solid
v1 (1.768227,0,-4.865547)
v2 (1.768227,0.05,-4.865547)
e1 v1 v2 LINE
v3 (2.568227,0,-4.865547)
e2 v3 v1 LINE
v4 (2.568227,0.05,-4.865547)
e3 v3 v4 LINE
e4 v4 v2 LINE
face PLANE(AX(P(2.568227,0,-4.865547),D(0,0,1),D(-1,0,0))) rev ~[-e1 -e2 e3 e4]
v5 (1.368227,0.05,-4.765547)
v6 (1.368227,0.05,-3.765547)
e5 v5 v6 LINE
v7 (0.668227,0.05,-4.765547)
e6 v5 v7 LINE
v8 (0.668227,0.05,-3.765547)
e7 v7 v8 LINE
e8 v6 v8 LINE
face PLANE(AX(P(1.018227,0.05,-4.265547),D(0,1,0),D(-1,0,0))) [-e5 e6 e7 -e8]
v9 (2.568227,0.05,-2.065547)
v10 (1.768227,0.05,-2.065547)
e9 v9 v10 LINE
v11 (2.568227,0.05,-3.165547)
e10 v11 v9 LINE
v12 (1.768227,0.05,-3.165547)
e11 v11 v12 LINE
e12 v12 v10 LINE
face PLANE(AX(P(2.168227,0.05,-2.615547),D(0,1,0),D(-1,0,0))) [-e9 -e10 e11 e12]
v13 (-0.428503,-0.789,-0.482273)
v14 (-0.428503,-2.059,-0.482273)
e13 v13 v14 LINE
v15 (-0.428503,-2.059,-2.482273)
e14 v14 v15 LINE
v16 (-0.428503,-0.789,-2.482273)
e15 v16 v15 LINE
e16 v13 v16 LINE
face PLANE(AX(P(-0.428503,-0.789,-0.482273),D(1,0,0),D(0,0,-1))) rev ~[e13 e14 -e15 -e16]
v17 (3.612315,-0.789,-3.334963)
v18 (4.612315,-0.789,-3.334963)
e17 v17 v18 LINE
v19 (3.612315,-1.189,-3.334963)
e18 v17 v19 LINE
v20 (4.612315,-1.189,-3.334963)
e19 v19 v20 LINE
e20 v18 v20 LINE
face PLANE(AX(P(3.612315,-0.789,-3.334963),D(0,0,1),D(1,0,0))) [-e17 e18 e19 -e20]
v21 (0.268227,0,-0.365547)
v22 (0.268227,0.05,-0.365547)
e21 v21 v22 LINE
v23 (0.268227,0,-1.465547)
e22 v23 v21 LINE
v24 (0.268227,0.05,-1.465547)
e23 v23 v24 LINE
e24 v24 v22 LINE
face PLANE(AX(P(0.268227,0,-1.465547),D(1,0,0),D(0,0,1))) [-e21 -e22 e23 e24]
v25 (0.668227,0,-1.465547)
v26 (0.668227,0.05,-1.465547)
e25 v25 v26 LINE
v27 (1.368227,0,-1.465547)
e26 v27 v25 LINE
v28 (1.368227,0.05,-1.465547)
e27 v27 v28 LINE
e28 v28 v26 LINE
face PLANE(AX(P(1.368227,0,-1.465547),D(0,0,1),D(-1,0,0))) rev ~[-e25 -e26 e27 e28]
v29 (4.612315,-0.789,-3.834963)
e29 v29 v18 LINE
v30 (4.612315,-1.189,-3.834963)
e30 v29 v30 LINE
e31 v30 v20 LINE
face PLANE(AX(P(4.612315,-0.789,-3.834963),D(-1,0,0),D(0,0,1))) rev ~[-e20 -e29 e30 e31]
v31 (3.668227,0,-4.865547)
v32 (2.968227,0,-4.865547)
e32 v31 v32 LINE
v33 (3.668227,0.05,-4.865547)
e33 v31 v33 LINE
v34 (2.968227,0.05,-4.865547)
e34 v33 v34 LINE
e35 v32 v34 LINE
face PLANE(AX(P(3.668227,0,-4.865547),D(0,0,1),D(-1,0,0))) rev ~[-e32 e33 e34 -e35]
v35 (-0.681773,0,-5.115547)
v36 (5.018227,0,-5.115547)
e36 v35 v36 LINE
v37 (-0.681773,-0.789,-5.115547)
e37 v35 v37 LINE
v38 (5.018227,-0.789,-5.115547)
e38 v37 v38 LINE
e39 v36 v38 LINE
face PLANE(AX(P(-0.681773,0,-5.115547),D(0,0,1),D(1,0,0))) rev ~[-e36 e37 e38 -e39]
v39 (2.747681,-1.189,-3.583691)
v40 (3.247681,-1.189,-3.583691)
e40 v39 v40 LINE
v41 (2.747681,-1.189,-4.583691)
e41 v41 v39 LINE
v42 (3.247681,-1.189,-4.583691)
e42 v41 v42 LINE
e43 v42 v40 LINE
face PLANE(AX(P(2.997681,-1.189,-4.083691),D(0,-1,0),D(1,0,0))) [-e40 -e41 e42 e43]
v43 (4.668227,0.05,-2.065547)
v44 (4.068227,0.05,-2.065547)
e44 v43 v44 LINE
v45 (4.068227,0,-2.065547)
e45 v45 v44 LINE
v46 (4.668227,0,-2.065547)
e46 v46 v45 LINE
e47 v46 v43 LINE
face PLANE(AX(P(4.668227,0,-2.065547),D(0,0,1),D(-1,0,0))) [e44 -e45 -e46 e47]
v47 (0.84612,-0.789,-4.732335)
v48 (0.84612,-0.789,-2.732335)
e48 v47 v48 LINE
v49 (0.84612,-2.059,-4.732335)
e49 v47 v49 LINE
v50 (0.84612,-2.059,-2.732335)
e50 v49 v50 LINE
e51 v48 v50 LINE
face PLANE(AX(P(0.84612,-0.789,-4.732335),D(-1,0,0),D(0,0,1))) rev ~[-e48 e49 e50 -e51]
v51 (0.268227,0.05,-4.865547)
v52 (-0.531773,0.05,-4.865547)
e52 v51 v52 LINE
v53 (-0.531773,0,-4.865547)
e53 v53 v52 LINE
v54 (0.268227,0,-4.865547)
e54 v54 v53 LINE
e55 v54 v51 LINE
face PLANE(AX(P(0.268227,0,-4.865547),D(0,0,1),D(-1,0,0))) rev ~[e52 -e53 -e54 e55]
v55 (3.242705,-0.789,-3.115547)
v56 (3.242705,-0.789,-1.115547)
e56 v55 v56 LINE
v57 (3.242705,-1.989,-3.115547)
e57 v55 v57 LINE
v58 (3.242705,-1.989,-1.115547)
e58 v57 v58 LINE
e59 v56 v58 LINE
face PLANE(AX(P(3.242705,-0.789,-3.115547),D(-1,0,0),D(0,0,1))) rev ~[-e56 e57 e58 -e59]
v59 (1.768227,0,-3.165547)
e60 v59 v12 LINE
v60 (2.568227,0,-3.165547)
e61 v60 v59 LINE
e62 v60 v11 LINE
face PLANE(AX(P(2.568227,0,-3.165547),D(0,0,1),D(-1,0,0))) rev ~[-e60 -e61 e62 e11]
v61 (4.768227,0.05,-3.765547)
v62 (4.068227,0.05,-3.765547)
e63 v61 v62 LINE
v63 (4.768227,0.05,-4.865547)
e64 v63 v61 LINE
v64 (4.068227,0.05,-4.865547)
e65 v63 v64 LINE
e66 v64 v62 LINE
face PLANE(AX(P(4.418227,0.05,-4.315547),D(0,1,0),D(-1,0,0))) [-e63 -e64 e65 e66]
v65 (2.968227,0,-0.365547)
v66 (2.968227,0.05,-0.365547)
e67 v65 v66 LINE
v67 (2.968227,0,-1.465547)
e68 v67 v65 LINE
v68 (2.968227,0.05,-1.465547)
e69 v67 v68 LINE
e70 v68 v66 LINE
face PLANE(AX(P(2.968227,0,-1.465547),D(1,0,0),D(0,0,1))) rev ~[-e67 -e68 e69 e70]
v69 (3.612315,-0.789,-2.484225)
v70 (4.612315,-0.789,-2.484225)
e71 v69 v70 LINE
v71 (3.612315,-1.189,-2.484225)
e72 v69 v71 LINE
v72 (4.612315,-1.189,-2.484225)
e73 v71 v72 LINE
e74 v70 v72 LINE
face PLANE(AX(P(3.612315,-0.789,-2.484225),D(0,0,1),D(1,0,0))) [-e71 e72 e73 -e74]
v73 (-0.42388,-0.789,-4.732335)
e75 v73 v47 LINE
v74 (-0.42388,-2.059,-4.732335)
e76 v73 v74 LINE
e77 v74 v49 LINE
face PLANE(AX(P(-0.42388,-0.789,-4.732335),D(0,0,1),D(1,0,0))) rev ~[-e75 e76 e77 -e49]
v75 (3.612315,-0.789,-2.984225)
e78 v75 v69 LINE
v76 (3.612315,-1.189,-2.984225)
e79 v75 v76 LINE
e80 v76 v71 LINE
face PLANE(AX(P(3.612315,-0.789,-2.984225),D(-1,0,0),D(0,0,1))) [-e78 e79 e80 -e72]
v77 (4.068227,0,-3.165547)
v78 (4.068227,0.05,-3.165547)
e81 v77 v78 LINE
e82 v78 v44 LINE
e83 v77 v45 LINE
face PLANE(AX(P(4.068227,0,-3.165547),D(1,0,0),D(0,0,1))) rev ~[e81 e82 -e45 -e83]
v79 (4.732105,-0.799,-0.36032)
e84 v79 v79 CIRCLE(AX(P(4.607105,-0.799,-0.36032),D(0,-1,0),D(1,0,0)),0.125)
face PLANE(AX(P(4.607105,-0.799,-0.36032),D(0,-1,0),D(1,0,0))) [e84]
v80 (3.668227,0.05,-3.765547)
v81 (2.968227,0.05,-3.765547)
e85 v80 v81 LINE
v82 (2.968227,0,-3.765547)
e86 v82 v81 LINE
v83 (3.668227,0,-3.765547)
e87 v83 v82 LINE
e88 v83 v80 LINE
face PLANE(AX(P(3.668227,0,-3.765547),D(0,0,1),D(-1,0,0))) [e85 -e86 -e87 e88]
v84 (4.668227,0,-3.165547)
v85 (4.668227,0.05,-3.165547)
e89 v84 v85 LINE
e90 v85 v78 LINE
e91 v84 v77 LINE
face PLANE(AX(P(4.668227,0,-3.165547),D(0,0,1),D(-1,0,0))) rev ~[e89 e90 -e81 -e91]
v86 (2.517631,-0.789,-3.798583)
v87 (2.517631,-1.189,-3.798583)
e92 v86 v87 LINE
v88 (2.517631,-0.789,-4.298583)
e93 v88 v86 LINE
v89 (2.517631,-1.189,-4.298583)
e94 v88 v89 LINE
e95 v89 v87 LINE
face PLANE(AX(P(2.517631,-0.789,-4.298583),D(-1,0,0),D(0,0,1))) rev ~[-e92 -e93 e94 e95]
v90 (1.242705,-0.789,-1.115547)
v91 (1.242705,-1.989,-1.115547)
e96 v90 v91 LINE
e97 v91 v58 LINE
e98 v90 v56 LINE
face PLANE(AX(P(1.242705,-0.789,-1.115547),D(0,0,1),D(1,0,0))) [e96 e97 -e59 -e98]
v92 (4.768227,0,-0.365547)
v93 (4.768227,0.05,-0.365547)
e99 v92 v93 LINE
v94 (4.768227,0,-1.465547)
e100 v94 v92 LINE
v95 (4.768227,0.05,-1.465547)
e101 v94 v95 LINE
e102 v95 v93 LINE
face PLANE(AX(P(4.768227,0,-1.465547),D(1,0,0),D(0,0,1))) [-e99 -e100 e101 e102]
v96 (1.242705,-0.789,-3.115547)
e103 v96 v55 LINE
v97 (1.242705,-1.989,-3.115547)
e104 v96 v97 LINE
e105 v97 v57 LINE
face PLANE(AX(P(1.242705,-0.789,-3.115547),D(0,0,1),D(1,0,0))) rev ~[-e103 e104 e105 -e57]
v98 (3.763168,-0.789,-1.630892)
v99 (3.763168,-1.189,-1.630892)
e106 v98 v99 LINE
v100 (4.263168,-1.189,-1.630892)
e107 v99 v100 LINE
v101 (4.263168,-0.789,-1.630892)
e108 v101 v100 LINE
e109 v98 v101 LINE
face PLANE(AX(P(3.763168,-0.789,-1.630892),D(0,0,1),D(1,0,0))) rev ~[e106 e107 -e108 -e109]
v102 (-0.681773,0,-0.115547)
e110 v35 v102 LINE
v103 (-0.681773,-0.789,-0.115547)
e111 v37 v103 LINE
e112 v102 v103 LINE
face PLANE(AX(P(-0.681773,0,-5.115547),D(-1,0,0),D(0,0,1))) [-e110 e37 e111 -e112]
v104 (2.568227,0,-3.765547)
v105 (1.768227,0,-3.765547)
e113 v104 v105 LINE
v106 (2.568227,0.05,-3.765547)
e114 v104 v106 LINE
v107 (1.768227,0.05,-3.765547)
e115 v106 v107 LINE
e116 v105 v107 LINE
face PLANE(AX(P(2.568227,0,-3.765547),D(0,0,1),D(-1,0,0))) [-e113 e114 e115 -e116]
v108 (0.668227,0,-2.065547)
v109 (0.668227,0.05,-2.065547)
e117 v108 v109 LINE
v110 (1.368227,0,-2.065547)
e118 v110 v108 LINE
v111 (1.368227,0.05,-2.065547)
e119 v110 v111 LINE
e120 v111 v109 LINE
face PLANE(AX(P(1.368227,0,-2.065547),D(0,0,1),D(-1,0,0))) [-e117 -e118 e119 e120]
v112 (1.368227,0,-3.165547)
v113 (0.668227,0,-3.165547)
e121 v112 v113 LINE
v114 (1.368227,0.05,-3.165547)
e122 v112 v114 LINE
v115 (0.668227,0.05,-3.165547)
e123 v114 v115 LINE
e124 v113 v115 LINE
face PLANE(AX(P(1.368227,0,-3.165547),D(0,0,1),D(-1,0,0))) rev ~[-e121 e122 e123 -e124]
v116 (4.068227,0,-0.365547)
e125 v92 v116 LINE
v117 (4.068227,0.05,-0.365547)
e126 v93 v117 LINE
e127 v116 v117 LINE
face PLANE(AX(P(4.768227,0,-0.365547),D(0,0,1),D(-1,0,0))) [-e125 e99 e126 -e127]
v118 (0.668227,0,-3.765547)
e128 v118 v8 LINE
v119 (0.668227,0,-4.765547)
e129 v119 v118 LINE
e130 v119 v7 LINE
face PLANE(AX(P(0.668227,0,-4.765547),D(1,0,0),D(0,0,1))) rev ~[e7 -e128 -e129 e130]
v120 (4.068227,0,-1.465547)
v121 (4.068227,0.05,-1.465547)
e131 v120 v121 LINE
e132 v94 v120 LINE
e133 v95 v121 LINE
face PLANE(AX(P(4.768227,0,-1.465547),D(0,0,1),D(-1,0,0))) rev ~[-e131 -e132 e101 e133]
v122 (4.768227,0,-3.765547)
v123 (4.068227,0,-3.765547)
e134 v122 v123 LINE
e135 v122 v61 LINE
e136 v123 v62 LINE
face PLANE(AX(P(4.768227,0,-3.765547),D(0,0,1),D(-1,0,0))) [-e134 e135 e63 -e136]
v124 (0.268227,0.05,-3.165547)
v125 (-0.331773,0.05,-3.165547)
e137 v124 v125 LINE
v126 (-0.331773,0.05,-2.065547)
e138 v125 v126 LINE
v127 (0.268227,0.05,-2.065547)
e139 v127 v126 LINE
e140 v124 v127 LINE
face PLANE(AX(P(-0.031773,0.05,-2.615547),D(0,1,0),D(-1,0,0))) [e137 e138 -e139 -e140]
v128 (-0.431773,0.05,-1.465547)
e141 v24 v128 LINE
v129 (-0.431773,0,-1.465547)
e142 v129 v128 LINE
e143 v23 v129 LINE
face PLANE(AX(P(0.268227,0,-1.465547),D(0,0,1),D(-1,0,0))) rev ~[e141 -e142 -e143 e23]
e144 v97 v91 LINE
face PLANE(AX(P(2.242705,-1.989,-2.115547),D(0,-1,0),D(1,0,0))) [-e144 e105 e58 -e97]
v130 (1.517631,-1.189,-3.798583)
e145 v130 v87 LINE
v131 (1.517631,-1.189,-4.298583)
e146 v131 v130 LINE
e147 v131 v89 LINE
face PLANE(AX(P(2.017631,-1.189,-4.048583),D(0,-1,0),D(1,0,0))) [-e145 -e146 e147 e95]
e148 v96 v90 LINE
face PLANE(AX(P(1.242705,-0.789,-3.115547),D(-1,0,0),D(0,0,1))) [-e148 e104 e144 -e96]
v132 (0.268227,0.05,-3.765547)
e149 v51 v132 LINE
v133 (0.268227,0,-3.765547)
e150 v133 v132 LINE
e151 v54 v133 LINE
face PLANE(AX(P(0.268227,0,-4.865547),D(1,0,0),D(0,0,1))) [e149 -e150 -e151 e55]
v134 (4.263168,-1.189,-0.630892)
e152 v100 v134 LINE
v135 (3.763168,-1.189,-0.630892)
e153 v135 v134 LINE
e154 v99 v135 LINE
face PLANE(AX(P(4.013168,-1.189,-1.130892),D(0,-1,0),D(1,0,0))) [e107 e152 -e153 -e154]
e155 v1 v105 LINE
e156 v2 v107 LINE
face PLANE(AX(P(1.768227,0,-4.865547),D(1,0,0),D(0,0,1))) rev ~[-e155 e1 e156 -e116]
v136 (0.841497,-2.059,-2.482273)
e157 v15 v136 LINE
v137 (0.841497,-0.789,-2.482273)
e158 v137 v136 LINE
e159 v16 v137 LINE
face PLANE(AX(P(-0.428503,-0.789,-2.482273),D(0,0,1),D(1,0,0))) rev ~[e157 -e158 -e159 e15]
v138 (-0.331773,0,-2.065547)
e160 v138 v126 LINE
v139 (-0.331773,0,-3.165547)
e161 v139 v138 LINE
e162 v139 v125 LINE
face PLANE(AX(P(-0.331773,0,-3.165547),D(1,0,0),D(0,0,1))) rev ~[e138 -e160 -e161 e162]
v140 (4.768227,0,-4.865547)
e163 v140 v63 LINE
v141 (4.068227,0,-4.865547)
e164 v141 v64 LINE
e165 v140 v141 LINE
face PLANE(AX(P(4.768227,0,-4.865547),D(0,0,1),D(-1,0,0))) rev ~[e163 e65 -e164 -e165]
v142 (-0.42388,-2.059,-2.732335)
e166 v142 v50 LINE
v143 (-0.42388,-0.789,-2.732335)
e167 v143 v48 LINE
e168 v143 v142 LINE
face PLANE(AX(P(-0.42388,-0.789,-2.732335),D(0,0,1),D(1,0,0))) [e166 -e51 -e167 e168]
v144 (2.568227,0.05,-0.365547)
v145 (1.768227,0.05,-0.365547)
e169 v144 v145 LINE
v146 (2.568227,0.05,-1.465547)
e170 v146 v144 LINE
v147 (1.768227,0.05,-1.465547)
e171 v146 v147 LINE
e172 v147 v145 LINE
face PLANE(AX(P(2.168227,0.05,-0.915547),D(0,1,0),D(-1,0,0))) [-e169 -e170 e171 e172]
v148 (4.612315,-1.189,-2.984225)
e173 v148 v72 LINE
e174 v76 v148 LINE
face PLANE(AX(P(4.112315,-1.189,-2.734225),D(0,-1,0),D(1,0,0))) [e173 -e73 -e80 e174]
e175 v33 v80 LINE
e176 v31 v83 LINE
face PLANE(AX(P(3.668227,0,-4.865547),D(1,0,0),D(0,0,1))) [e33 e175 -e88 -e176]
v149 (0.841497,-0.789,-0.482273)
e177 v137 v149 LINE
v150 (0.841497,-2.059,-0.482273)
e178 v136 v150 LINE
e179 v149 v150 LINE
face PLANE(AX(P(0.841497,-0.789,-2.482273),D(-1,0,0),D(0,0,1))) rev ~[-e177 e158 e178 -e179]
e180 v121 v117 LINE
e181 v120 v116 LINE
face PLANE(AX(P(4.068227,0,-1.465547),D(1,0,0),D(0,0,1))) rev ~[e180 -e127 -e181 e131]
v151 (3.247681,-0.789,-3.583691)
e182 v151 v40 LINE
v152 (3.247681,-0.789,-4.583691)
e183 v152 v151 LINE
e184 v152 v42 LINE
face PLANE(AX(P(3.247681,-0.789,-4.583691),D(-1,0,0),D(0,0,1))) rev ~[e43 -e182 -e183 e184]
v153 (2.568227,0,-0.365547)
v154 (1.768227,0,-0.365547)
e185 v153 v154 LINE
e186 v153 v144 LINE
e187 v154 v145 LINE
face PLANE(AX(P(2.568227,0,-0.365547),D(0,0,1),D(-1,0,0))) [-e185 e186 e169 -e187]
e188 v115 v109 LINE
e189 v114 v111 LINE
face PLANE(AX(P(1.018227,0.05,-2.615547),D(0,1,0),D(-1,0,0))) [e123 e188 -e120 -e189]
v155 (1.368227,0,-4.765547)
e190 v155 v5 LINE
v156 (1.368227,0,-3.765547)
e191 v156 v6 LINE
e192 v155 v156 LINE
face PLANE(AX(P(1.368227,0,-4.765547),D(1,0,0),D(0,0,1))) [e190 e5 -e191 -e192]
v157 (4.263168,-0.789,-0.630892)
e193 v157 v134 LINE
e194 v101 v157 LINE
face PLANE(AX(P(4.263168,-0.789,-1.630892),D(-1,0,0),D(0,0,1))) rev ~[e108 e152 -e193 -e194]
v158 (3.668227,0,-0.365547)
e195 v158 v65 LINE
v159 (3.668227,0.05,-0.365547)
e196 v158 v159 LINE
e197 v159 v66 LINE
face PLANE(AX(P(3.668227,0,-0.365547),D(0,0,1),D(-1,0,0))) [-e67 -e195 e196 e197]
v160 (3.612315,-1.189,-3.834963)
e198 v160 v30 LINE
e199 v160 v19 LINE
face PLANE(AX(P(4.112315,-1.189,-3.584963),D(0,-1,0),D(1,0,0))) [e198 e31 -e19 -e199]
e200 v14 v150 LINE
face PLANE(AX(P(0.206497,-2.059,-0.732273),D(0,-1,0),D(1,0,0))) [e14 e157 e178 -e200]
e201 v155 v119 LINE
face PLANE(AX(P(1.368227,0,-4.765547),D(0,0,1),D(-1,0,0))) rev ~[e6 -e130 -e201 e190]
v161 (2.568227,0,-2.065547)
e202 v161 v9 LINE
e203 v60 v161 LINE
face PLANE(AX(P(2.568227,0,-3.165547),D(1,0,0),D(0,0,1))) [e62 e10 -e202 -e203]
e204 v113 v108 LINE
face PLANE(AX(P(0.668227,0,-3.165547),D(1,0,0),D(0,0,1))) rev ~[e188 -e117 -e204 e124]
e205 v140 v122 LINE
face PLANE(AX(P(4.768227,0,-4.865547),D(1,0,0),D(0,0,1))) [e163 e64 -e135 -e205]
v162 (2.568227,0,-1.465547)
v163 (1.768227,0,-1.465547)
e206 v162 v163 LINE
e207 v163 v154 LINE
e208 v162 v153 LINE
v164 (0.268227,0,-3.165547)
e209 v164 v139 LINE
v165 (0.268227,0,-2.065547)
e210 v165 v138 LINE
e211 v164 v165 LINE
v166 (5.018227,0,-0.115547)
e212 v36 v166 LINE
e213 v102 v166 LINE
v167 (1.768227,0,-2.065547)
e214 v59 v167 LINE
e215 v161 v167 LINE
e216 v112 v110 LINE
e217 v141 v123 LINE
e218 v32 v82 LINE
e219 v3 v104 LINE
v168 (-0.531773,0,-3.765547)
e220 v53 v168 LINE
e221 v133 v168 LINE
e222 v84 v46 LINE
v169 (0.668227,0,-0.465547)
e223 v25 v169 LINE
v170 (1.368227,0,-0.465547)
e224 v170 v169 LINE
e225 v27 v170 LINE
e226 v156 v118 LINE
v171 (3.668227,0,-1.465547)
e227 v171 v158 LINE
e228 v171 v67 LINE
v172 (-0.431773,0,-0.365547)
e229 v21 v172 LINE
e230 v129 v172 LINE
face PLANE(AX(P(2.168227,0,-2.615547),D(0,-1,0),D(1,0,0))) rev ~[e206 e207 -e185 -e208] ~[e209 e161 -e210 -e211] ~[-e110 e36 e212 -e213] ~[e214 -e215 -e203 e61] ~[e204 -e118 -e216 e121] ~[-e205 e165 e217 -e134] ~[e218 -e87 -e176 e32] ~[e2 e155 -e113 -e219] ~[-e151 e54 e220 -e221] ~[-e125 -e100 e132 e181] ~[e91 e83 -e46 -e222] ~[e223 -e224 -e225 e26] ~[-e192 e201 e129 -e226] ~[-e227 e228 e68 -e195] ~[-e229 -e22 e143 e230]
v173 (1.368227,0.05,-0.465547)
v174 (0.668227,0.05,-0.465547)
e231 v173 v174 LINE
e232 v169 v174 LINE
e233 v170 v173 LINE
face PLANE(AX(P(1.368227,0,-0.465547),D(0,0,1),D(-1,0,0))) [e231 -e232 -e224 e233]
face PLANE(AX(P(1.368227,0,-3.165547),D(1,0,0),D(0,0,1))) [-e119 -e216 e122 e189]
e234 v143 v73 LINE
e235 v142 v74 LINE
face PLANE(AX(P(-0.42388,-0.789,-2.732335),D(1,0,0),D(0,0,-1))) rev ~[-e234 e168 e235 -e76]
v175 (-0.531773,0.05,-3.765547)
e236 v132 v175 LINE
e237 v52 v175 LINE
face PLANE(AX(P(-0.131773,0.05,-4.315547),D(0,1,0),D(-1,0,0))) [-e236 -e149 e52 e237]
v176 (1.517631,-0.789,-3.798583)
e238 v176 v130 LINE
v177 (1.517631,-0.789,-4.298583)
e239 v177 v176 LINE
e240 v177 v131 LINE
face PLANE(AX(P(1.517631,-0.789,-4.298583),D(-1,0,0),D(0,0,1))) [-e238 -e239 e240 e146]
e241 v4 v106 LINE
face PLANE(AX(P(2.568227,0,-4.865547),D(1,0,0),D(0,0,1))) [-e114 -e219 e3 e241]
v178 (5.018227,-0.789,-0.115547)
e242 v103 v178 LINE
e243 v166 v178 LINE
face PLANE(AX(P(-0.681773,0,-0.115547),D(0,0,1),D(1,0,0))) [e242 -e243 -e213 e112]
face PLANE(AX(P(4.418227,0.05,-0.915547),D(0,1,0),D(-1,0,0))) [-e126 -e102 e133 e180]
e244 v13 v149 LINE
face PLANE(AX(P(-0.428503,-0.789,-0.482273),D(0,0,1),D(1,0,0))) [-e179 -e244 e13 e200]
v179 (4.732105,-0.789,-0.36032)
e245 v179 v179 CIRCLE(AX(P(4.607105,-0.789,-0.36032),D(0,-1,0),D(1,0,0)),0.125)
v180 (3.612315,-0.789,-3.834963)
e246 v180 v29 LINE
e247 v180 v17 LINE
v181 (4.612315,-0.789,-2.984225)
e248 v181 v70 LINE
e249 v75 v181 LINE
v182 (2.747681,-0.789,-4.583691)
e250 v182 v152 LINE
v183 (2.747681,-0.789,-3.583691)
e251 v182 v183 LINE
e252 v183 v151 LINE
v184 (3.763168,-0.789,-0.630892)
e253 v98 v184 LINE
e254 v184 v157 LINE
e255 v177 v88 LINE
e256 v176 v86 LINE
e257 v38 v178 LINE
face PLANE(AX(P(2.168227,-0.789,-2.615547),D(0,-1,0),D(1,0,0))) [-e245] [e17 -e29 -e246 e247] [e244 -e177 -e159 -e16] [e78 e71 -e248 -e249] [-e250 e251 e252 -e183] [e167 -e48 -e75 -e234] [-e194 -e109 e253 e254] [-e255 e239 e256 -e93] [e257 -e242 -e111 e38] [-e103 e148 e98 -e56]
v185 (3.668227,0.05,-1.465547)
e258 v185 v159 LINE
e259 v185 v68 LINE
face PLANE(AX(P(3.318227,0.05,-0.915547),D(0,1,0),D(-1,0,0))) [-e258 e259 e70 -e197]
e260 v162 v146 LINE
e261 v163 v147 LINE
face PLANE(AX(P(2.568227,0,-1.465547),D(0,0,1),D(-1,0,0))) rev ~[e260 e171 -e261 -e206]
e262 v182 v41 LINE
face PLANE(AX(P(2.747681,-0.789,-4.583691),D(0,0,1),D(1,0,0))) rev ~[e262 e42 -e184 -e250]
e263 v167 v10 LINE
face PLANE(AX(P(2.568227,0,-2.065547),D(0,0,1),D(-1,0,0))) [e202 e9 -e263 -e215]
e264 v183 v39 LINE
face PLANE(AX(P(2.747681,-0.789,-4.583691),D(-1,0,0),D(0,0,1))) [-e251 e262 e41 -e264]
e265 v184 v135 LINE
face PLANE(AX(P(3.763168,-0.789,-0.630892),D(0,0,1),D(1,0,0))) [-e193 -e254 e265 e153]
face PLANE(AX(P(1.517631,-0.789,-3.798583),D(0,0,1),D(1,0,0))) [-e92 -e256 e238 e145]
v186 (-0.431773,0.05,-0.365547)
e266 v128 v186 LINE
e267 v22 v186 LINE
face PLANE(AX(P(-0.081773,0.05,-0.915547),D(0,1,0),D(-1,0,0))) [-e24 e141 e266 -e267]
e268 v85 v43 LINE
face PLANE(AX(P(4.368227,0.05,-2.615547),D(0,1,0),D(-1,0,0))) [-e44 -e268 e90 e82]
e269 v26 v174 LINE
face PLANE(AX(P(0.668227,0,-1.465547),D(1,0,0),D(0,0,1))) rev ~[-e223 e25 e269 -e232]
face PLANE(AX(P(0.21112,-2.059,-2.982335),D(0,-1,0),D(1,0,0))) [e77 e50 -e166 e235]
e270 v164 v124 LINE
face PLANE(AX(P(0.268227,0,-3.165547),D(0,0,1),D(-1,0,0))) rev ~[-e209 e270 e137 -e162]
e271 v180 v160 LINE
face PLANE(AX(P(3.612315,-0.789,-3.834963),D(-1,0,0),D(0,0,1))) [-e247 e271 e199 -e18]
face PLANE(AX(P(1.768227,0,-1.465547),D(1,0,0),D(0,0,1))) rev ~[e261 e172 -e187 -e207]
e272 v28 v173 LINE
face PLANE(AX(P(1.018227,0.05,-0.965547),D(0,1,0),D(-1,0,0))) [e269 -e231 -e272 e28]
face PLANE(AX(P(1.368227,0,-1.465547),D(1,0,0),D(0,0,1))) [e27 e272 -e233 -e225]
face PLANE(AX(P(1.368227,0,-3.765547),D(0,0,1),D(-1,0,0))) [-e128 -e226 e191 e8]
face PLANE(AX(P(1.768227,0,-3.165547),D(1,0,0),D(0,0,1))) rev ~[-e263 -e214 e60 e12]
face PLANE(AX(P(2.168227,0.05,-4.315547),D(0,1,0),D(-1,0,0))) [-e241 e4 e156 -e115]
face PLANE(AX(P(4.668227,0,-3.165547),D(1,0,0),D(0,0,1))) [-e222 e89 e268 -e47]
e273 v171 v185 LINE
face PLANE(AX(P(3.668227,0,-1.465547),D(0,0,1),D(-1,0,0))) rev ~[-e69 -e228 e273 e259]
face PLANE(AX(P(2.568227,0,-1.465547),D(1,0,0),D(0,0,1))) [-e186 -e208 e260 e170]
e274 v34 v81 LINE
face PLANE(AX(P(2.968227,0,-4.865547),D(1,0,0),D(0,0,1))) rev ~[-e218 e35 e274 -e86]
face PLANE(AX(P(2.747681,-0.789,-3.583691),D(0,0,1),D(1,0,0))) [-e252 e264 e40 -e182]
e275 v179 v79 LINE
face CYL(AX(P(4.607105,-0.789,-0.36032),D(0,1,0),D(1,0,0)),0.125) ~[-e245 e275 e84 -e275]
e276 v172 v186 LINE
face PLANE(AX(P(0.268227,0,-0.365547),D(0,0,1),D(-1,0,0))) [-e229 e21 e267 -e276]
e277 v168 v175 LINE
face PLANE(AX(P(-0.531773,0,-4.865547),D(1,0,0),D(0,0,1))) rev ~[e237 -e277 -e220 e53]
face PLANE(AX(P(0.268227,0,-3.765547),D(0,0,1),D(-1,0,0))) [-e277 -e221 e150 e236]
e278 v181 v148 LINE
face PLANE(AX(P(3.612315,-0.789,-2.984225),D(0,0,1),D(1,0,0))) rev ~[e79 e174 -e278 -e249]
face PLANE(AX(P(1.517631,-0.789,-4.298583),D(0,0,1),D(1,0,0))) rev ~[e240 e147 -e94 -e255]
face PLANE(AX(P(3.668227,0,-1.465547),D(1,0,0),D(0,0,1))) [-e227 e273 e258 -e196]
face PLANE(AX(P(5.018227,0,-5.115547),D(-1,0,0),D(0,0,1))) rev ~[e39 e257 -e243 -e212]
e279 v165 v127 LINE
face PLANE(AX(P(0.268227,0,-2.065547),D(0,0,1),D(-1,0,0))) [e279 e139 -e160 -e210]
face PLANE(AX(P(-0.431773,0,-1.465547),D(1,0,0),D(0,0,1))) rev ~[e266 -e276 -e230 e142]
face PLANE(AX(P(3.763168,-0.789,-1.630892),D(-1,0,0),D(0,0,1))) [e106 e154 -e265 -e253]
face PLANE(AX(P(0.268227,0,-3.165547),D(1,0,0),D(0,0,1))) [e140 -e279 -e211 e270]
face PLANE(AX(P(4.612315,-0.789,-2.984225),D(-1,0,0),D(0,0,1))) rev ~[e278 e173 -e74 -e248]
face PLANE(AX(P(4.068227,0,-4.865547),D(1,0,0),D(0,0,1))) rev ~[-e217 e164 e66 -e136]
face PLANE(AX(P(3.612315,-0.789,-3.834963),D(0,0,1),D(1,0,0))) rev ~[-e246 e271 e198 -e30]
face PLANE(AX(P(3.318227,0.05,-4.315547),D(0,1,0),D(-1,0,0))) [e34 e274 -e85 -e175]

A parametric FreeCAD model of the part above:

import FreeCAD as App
import Part
import Sketcher
from FreeCAD import Vector
Q = App.Units.Quantity

doc = App.newDocument("Part")
body = doc.addObject("PartDesign::Body", "Body")

sketch1 = body.newObject("Sketcher::SketchObject", "Sketch")
sketch1.AttachmentSupport = (doc.getObject("XZ_Plane"), [""])
sketch1.MapMode = "FlatFace"
sketch1.addGeometry([
    Part.LineSegment(Vector(-0.681773, -0.115547, 0), Vector(-0.681773, -5.115547, 0)),
    Part.LineSegment(Vector(-0.681773, -5.115547, 0), Vector(5.018227, -5.115547, 0)),
    Part.LineSegment(Vector(5.018227, -5.115547, 0), Vector(5.018227, -0.115547, 0)),
    Part.LineSegment(Vector(5.018227, -0.115547, 0), Vector(-0.681773, -0.115547, 0)),
], False)
sketch1.addConstraint([
    Sketcher.Constraint("Coincident", 0, 2, 1, 1),
    Sketcher.Constraint("Coincident", 1, 2, 2, 1),
    Sketcher.Constraint("Coincident", 2, 2, 3, 1),
    Sketcher.Constraint("Coincident", 3, 2, 0, 1),
    Sketcher.Constraint("Vertical", 0),
    Sketcher.Constraint("Horizontal", 1),
    Sketcher.Constraint("Vertical", 2),
    Sketcher.Constraint("Horizontal", 3),
    Sketcher.Constraint("DistanceY", 0, 2, 0, 1, Q("5 mm")),
    Sketcher.Constraint("DistanceX", 1, 1, 1, 2, Q("5.7 mm")),
    Sketcher.Constraint("DistanceX", 0, 2, -1, 1, Q("0.681773 mm")),
    Sketcher.Constraint("DistanceY", 0, 2, -1, 1, Q("5.115547 mm")),
])
pad1 = body.newObject("PartDesign::Pad", "Pad")
pad1.Profile = sketch1
pad1.Length = 0.789

sketch2 = body.newObject("Sketcher::SketchObject", "Sketch001")
sketch2.AttachmentSupport = (doc.getObject("XZ_Plane"), [""])
sketch2.MapMode = "FlatFace"
sketch2.AttachmentOffset = App.Placement(Vector(0, 0, 0.789), App.Rotation())
sketch2.addGeometry([
    Part.LineSegment(Vector(1.242705, -1.115547, 0), Vector(1.242705, -3.115547, 0)),
    Part.LineSegment(Vector(1.242705, -3.115547, 0), Vector(3.242705, -3.115547, 0)),
    Part.LineSegment(Vector(3.242705, -3.115547, 0), Vector(3.242705, -1.115547, 0)),
    Part.LineSegment(Vector(3.242705, -1.115547, 0), Vector(1.242705, -1.115547, 0)),
], False)
sketch2.addConstraint([
    Sketcher.Constraint("Coincident", 0, 2, 1, 1),
    Sketcher.Constraint("Coincident", 1, 2, 2, 1),
    Sketcher.Constraint("Coincident", 2, 2, 3, 1),
    Sketcher.Constraint("Coincident", 3, 2, 0, 1),
    Sketcher.Constraint("Vertical", 0),
    Sketcher.Constraint("Horizontal", 1),
    Sketcher.Constraint("Vertical", 2),
    Sketcher.Constraint("Horizontal", 3),
    Sketcher.Constraint("Equal", 3, 0),
    Sketcher.Constraint("DistanceX", 1, 1, 1, 2, Q("2 mm")),
    Sketcher.Constraint("DistanceX", -1, 1, 0, 2, Q("1.242705 mm")),
    Sketcher.Constraint("DistanceY", 0, 2, -1, 1, Q("3.115547 mm")),
])
pad2 = body.newObject("PartDesign::Pad", "Pad001")
pad2.Profile = sketch2
pad2.Length = 1.2

sketch3 = body.newObject("Sketcher::SketchObject", "Sketch002")
sketch3.AttachmentSupport = (doc.getObject("XZ_Plane"), [""])
sketch3.MapMode = "FlatFace"
sketch3.AttachmentOffset = App.Placement(Vector(0, 0, 0.789), App.Rotation())
sketch3.addGeometry([
    Part.LineSegment(Vector(-0.428503, -0.482273, 0), Vector(-0.428503, -2.482273, 0)),
    Part.LineSegment(Vector(-0.428503, -2.482273, 0), Vector(0.841497, -2.482273, 0)),
    Part.LineSegment(Vector(0.841497, -2.482273, 0), Vector(0.841497, -0.482273, 0)),
    Part.LineSegment(Vector(0.841497, -0.482273, 0), Vector(-0.428503, -0.482273, 0)),
    Part.LineSegment(Vector(-0.42388, -2.732335, 0), Vector(-0.42388, -4.732335, 0)),
    Part.LineSegment(Vector(-0.42388, -4.732335, 0), Vector(0.84612, -4.732335, 0)),
    Part.LineSegment(Vector(0.84612, -4.732335, 0), Vector(0.84612, -2.732335, 0)),
    Part.LineSegment(Vector(0.84612, -2.732335, 0), Vector(-0.42388, -2.732335, 0)),
], False)
sketch3.addConstraint([
    Sketcher.Constraint("Coincident", 0, 2, 1, 1),
    Sketcher.Constraint("Coincident", 1, 2, 2, 1),
    Sketcher.Constraint("Coincident", 2, 2, 3, 1),
    Sketcher.Constraint("Coincident", 3, 2, 0, 1),
    Sketcher.Constraint("Coincident", 4, 2, 5, 1),
    Sketcher.Constraint("Coincident", 5, 2, 6, 1),
    Sketcher.Constraint("Coincident", 6, 2, 7, 1),
    Sketcher.Constraint("Coincident", 7, 2, 4, 1),
    Sketcher.Constraint("Vertical", 0),
    Sketcher.Constraint("Horizontal", 1),
    Sketcher.Constraint("Vertical", 2),
    Sketcher.Constraint("Horizontal", 3),
    Sketcher.Constraint("Vertical", 4),
    Sketcher.Constraint("Horizontal", 5),
    Sketcher.Constraint("Vertical", 6),
    Sketcher.Constraint("Horizontal", 7),
    Sketcher.Constraint("Equal", 3, 5),
    Sketcher.Constraint("Equal", 2, 4),
    Sketcher.Constraint("DistanceY", 0, 2, 0, 1, Q("2 mm")),
    Sketcher.Constraint("DistanceX", 1, 1, 1, 2, Q("1.27 mm")),
    Sketcher.Constraint("DistanceX", 4, 2, -1, 1, Q("0.42388 mm")),
    Sketcher.Constraint("DistanceY", 4, 2, 0, 2, Q("2.250062 mm")),
    Sketcher.Constraint("DistanceX", 0, 2, -1, 1, Q("0.428503 mm")),
    Sketcher.Constraint("DistanceY", 0, 2, -1, 1, Q("2.482273 mm")),
])
pad3 = body.newObject("PartDesign::Pad", "Pad002")
pad3.Profile = sketch3
pad3.Length = 1.27

sketch4 = body.newObject("Sketcher::SketchObject", "Sketch003")
sketch4.AttachmentSupport = (doc.getObject("XZ_Plane"), [""])
sketch4.MapMode = "FlatFace"
sketch4.AttachmentOffset = App.Placement(Vector(0, 0, 0.789), App.Rotation())
sketch4.addGeometry([
    Part.LineSegment(Vector(1.517631, -3.798583, 0), Vector(1.517631, -4.298583, 0)),
    Part.LineSegment(Vector(1.517631, -4.298583, 0), Vector(2.517631, -4.298583, 0)),
    Part.LineSegment(Vector(2.517631, -4.298583, 0), Vector(2.517631, -3.798583, 0)),
    Part.LineSegment(Vector(2.517631, -3.798583, 0), Vector(1.517631, -3.798583, 0)),
    Part.LineSegment(Vector(2.747681, -3.583691, 0), Vector(2.747681, -4.583691, 0)),
    Part.LineSegment(Vector(2.747681, -4.583691, 0), Vector(3.247681, -4.583691, 0)),
    Part.LineSegment(Vector(3.247681, -4.583691, 0), Vector(3.247681, -3.583691, 0)),
    Part.LineSegment(Vector(3.247681, -3.583691, 0), Vector(2.747681, -3.583691, 0)),
    Part.LineSegment(Vector(3.612315, -3.334963, 0), Vector(3.612315, -3.834963, 0)),
    Part.LineSegment(Vector(3.612315, -3.834963, 0), Vector(4.612315, -3.834963, 0)),
    Part.LineSegment(Vector(4.612315, -3.834963, 0), Vector(4.612315, -3.334963, 0)),
    Part.LineSegment(Vector(4.612315, -3.334963, 0), Vector(3.612315, -3.334963, 0)),
    Part.LineSegment(Vector(3.612315, -2.484225, 0), Vector(3.612315, -2.984225, 0)),
    Part.LineSegment(Vector(3.612315, -2.984225, 0), Vector(4.612315, -2.984225, 0)),
    Part.LineSegment(Vector(4.612315, -2.984225, 0), Vector(4.612315, -2.484225, 0)),
    Part.LineSegment(Vector(4.612315, -2.484225, 0), Vector(3.612315, -2.484225, 0)),
    Part.LineSegment(Vector(3.763168, -0.630892, 0), Vector(3.763168, -1.630892, 0)),
    Part.LineSegment(Vector(3.763168, -1.630892, 0), Vector(4.263168, -1.630892, 0)),
    Part.LineSegment(Vector(4.263168, -1.630892, 0), Vector(4.263168, -0.630892, 0)),
    Part.LineSegment(Vector(4.263168, -0.630892, 0), Vector(3.763168, -0.630892, 0)),
], False)
sketch4.addConstraint([
    Sketcher.Constraint("Coincident", 0, 2, 1, 1),
    Sketcher.Constraint("Coincident", 1, 2, 2, 1),
    Sketcher.Constraint("Coincident", 2, 2, 3, 1),
    Sketcher.Constraint("Coincident", 3, 2, 0, 1),
    Sketcher.Constraint("Coincident", 4, 2, 5, 1),
    Sketcher.Constraint("Coincident", 5, 2, 6, 1),
    Sketcher.Constraint("Coincident", 6, 2, 7, 1),
    Sketcher.Constraint("Coincident", 7, 2, 4, 1),
    Sketcher.Constraint("Coincident", 8, 2, 9, 1),
    Sketcher.Constraint("Coincident", 9, 2, 10, 1),
    Sketcher.Constraint("Coincident", 10, 2, 11, 1),
    Sketcher.Constraint("Coincident", 11, 2, 8, 1),
    Sketcher.Constraint("Coincident", 12, 2, 13, 1),
    Sketcher.Constraint("Coincident", 13, 2, 14, 1),
    Sketcher.Constraint("Coincident", 14, 2, 15, 1),
    Sketcher.Constraint("Coincident", 15, 2, 12, 1),
    Sketcher.Constraint("Coincident", 16, 2, 17, 1),
    Sketcher.Constraint("Coincident", 17, 2, 18, 1),
    Sketcher.Constraint("Coincident", 18, 2, 19, 1),
    Sketcher.Constraint("Coincident", 19, 2, 16, 1),
    Sketcher.Constraint("Vertical", 0),
    Sketcher.Constraint("Horizontal", 1),
    Sketcher.Constraint("Vertical", 2),
    Sketcher.Constraint("Horizontal", 3),
    Sketcher.Constraint("Vertical", 4),
    Sketcher.Constraint("Horizontal", 5),
    Sketcher.Constraint("Vertical", 6),
    Sketcher.Constraint("Horizontal", 7),
    Sketcher.Constraint("Vertical", 8),
    Sketcher.Constraint("Horizontal", 9),
    Sketcher.Constraint("Vertical", 10),
    Sketcher.Constraint("Horizontal", 11),
    Sketcher.Constraint("Vertical", 12),
    Sketcher.Constraint("Horizontal", 13),
    Sketcher.Constraint("Vertical", 14),
    Sketcher.Constraint("Horizontal", 15),
    Sketcher.Constraint("Vertical", 16),
    Sketcher.Constraint("Horizontal", 17),
    Sketcher.Constraint("Vertical", 18),
    Sketcher.Constraint("Horizontal", 19),
    Sketcher.Constraint("Vertical", 11, 2, 12, 2),
    Sketcher.Constraint("Vertical", 10, 2, 13, 2),
    Sketcher.Constraint("Equal", 3, 9),
    Sketcher.Constraint("Equal", 7, 17),
    Sketcher.Constraint("Equal", 19, 0),
    Sketcher.Constraint("Equal", 15, 4),
    Sketcher.Constraint("Equal", 2, 8),
    Sketcher.Constraint("Equal", 10, 12),
    Sketcher.Constraint("Equal", 6, 16),
    Sketcher.Constraint("DistanceX", 1, 1, 1, 2, Q("1 mm")),
    Sketcher.Constraint("DistanceX", 5, 1, 5, 2, Q("0.5 mm")),
    Sketcher.Constraint("DistanceX", -1, 1, 0, 2, Q("1.517631 mm")),
    Sketcher.Constraint("DistanceX", -1, 1, 4, 2, Q("2.747681 mm")),
    Sketcher.Constraint("DistanceY", 4, 2, -1, 1, Q("4.583691 mm")),
    Sketcher.Constraint("DistanceX", -1, 1, 17, 2, Q("4.263168 mm")),
    Sketcher.Constraint("DistanceY", 4, 2, 1, 2, Q("0.285108 mm")),
    Sketcher.Constraint("DistanceY", 8, 2, 2, 2, Q("0.03638 mm")),
    Sketcher.Constraint("DistanceY", 11, 2, 12, 2, Q("0.350738 mm")),
    Sketcher.Constraint("DistanceY", 11, 2, 16, 2, Q("1.704071 mm")),
    Sketcher.Constraint("DistanceX", -1, 1, 8, 2, Q("3.612315 mm")),
])
pad4 = body.newObject("PartDesign::Pad", "Pad003")
pad4.Profile = sketch4
pad4.Length = 0.4

sketch5 = body.newObject("Sketcher::SketchObject", "Sketch004")
sketch5.AttachmentSupport = (doc.getObject("XZ_Plane"), [""])
sketch5.MapMode = "FlatFace"
sketch5.AttachmentOffset = App.Placement(Vector(0, 0, 0.789), App.Rotation())
sketch5.addGeometry(Part.Circle(Vector(4.607105, -0.36032, 0), Vector(0, 0, 1), 0.125), False)
sketch5.addConstraint([
    Sketcher.Constraint("Diameter", 0, Q("0.25 mm")),
    Sketcher.Constraint("DistanceY", 0, 3, -1, 1, Q("0.36032 mm")),
    Sketcher.Constraint("DistanceX", -1, 1, 0, 3, Q("4.607105 mm")),
])
pad5 = body.newObject("PartDesign::Pad", "Pad004")
pad5.Profile = sketch5
pad5.Length = 0.01

sketch6 = body.newObject("Sketcher::SketchObject", "Sketch005")
sketch6.AttachmentSupport = (doc.getObject("XZ_Plane"), [""])
sketch6.MapMode = "FlatFace"
sketch6.addGeometry([
    Part.LineSegment(Vector(4.768227, -3.765547, 0), Vector(4.768227, -4.865547, 0)),
    Part.LineSegment(Vector(4.768227, -4.865547, 0), Vector(4.068227, -4.865547, 0)),
    Part.LineSegment(Vector(4.068227, -4.865547, 0), Vector(4.068227, -3.765547, 0)),
    Part.LineSegment(Vector(4.068227, -3.765547, 0), Vector(4.768227, -3.765547, 0)),
    Part.LineSegment(Vector(4.668227, -2.065547, 0), Vector(4.668227, -3.165547, 0)),
    Part.LineSegment(Vector(4.668227, -3.165547, 0), Vector(4.068227, -3.165547, 0)),
    Part.LineSegment(Vector(4.068227, -3.165547, 0), Vector(4.068227, -2.065547, 0)),
    Part.LineSegment(Vector(4.068227, -2.065547, 0), Vector(4.668227, -2.065547, 0)),
    Part.LineSegment(Vector(2.568227, -2.065547, 0), Vector(2.568227, -3.165547, 0)),
    Part.LineSegment(Vector(2.568227, -3.165547, 0), Vector(1.768227, -3.165547, 0)),
    Part.LineSegment(Vector(1.768227, -3.165547, 0), Vector(1.768227, -2.065547, 0)),
    Part.LineSegment(Vector(1.768227, -2.065547, 0), Vector(2.568227, -2.065547, 0)),
    Part.LineSegment(Vector(1.368227, -2.065547, 0), Vector(1.368227, -3.165547, 0)),
    Part.LineSegment(Vector(1.368227, -3.165547, 0), Vector(0.668227, -3.165547, 0)),
    Part.LineSegment(Vector(0.668227, -3.165547, 0), Vector(0.668227, -2.065547, 0)),
    Part.LineSegment(Vector(0.668227, -2.065547, 0), Vector(1.368227, -2.065547, 0)),
    Part.LineSegment(Vector(3.668227, -3.765547, 0), Vector(3.668227, -4.865547, 0)),
    Part.LineSegment(Vector(3.668227, -4.865547, 0), Vector(2.968227, -4.865547, 0)),
    Part.LineSegment(Vector(2.968227, -4.865547, 0), Vector(2.968227, -3.765547, 0)),
    Part.LineSegment(Vector(2.968227, -3.765547, 0), Vector(3.668227, -3.765547, 0)),
    Part.LineSegment(Vector(2.568227, -3.765547, 0), Vector(2.568227, -4.865547, 0)),
    Part.LineSegment(Vector(2.568227, -4.865547, 0), Vector(1.768227, -4.865547, 0)),
    Part.LineSegment(Vector(1.768227, -4.865547, 0), Vector(1.768227, -3.765547, 0)),
    Part.LineSegment(Vector(1.768227, -3.765547, 0), Vector(2.568227, -3.765547, 0)),
    Part.LineSegment(Vector(1.368227, -3.765547, 0), Vector(1.368227, -4.765547, 0)),
    Part.LineSegment(Vector(1.368227, -4.765547, 0), Vector(0.668227, -4.765547, 0)),
    Part.LineSegment(Vector(0.668227, -4.765547, 0), Vector(0.668227, -3.765547, 0)),
    Part.LineSegment(Vector(0.668227, -3.765547, 0), Vector(1.368227, -3.765547, 0)),
    Part.LineSegment(Vector(4.768227, -0.365547, 0), Vector(4.768227, -1.465547, 0)),
    Part.LineSegment(Vector(4.768227, -1.465547, 0), Vector(4.068227, -1.465547, 0)),
    Part.LineSegment(Vector(4.068227, -1.465547, 0), Vector(4.068227, -0.365547, 0)),
    Part.LineSegment(Vector(4.068227, -0.365547, 0), Vector(4.768227, -0.365547, 0)),
    Part.LineSegment(Vector(3.668227, -0.365547, 0), Vector(3.668227, -1.465547, 0)),
    Part.LineSegment(Vector(3.668227, -1.465547, 0), Vector(2.968227, -1.465547, 0)),
    Part.LineSegment(Vector(2.968227, -1.465547, 0), Vector(2.968227, -0.365547, 0)),
    Part.LineSegment(Vector(2.968227, -0.365547, 0), Vector(3.668227, -0.365547, 0)),
    Part.LineSegment(Vector(2.568227, -0.365547, 0), Vector(2.568227, -1.465547, 0)),
    Part.LineSegment(Vector(2.568227, -1.465547, 0), Vector(1.768227, -1.465547, 0)),
    Part.LineSegment(Vector(1.768227, -1.465547, 0), Vector(1.768227, -0.365547, 0)),
    Part.LineSegment(Vector(1.768227, -0.365547, 0), Vector(2.568227, -0.365547, 0)),
    Part.LineSegment(Vector(1.368227, -0.465547, 0), Vector(1.368227, -1.465547, 0)),
    Part.LineSegment(Vector(1.368227, -1.465547, 0), Vector(0.668227, -1.465547, 0)),
    Part.LineSegment(Vector(0.668227, -1.465547, 0), Vector(0.668227, -0.465547, 0)),
    Part.LineSegment(Vector(0.668227, -0.465547, 0), Vector(1.368227, -0.465547, 0)),
    Part.LineSegment(Vector(0.268227, -3.765547, 0), Vector(0.268227, -4.865547, 0)),
    Part.LineSegment(Vector(0.268227, -4.865547, 0), Vector(-0.531773, -4.865547, 0)),
    Part.LineSegment(Vector(-0.531773, -4.865547, 0), Vector(-0.531773, -3.765547, 0)),
    Part.LineSegment(Vector(-0.531773, -3.765547, 0), Vector(0.268227, -3.765547, 0)),
    Part.LineSegment(Vector(0.268227, -2.065547, 0), Vector(0.268227, -3.165547, 0)),
    Part.LineSegment(Vector(0.268227, -3.165547, 0), Vector(-0.331773, -3.165547, 0)),
    Part.LineSegment(Vector(-0.331773, -3.165547, 0), Vector(-0.331773, -2.065547, 0)),
    Part.LineSegment(Vector(-0.331773, -2.065547, 0), Vector(0.268227, -2.065547, 0)),
    Part.LineSegment(Vector(0.268227, -0.365547, 0), Vector(0.268227, -1.465547, 0)),
    Part.LineSegment(Vector(0.268227, -1.465547, 0), Vector(-0.431773, -1.465547, 0)),
    Part.LineSegment(Vector(-0.431773, -1.465547, 0), Vector(-0.431773, -0.365547, 0)),
    Part.LineSegment(Vector(-0.431773, -0.365547, 0), Vector(0.268227, -0.365547, 0)),
], False)
sketch6.addConstraint([
    Sketcher.Constraint("Coincident", 0, 2, 1, 1),
    Sketcher.Constraint("Coincident", 1, 2, 2, 1),
    Sketcher.Constraint("Coincident", 2, 2, 3, 1),
    Sketcher.Constraint("Coincident", 3, 2, 0, 1),
    Sketcher.Constraint("Coincident", 4, 2, 5, 1),
    Sketcher.Constraint("Coincident", 5, 2, 6, 1),
    Sketcher.Constraint("Coincident", 6, 2, 7, 1),
    Sketcher.Constraint("Coincident", 7, 2, 4, 1),
    Sketcher.Constraint("Coincident", 8, 2, 9, 1),
    Sketcher.Constraint("Coincident", 9, 2, 10, 1),
    Sketcher.Constraint("Coincident", 10, 2, 11, 1),
    Sketcher.Constraint("Coincident", 11, 2, 8, 1),
    Sketcher.Constraint("Coincident", 12, 2, 13, 1),
    Sketcher.Constraint("Coincident", 13, 2, 14, 1),
    Sketcher.Constraint("Coincident", 14, 2, 15, 1),
    Sketcher.Constraint("Coincident", 15, 2, 12, 1),
    Sketcher.Constraint("Coincident", 16, 2, 17, 1),
    Sketcher.Constraint("Coincident", 17, 2, 18, 1),
    Sketcher.Constraint("Coincident", 18, 2, 19, 1),
    Sketcher.Constraint("Coincident", 19, 2, 16, 1),
    Sketcher.Constraint("Coincident", 20, 2, 21, 1),
    Sketcher.Constraint("Coincident", 21, 2, 22, 1),
    Sketcher.Constraint("Coincident", 22, 2, 23, 1),
    Sketcher.Constraint("Coincident", 23, 2, 20, 1),
    Sketcher.Constraint("Coincident", 24, 2, 25, 1),
    Sketcher.Constraint("Coincident", 25, 2, 26, 1),
    Sketcher.Constraint("Coincident", 26, 2, 27, 1),
    Sketcher.Constraint("Coincident", 27, 2, 24, 1),
    Sketcher.Constraint("Coincident", 28, 2, 29, 1),
    Sketcher.Constraint("Coincident", 29, 2, 30, 1),
    Sketcher.Constraint("Coincident", 30, 2, 31, 1),
    Sketcher.Constraint("Coincident", 31, 2, 28, 1),
    Sketcher.Constraint("Coincident", 32, 2, 33, 1),
    Sketcher.Constraint("Coincident", 33, 2, 34, 1),
    Sketcher.Constraint("Coincident", 34, 2, 35, 1),
    Sketcher.Constraint("Coincident", 35, 2, 32, 1),
    Sketcher.Constraint("Coincident", 36, 2, 37, 1),
    Sketcher.Constraint("Coincident", 37, 2, 38, 1),
    Sketcher.Constraint("Coincident", 38, 2, 39, 1),
    Sketcher.Constraint("Coincident", 39, 2, 36, 1),
    Sketcher.Constraint("Coincident", 40, 2, 41, 1),
    Sketcher.Constraint("Coincident", 41, 2, 42, 1),
    Sketcher.Constraint("Coincident", 42, 2, 43, 1),
    Sketcher.Constraint("Coincident", 43, 2, 40, 1),
    Sketcher.Constraint("Coincident", 44, 2, 45, 1),
    Sketcher.Constraint("Coincident", 45, 2, 46, 1),
    Sketcher.Constraint("Coincident", 46, 2, 47, 1),
    Sketcher.Constraint("Coincident", 47, 2, 44, 1),
    Sketcher.Constraint("Coincident", 48, 2, 49, 1),
    Sketcher.Constraint("Coincident", 49, 2, 50, 1),
    Sketcher.Constraint("Coincident", 50, 2, 51, 1),
    Sketcher.Constraint("Coincident", 51, 2, 48, 1),
    Sketcher.Constraint("Coincident", 52, 2, 53, 1),
    Sketcher.Constraint("Coincident", 53, 2, 54, 1),
    Sketcher.Constraint("Coincident", 54, 2, 55, 1),
    Sketcher.Constraint("Coincident", 55, 2, 52, 1),
    Sketcher.Constraint("Vertical", 0),
    Sketcher.Constraint("Horizontal", 1),
    Sketcher.Constraint("Vertical", 2),
    Sketcher.Constraint("Horizontal", 3),
    Sketcher.Constraint("Vertical", 4),
    Sketcher.Constraint("Horizontal", 5),
    Sketcher.Constraint("Vertical", 6),
    Sketcher.Constraint("Horizontal", 7),
    Sketcher.Constraint("Vertical", 8),
    Sketcher.Constraint("Horizontal", 9),
    Sketcher.Constraint("Vertical", 10),
    Sketcher.Constraint("Horizontal", 11),
    Sketcher.Constraint("Vertical", 12),
    Sketcher.Constraint("Horizontal", 13),
    Sketcher.Constraint("Vertical", 14),
    Sketcher.Constraint("Horizontal", 15),
    Sketcher.Constraint("Vertical", 16),
    Sketcher.Constraint("Horizontal", 17),
    Sketcher.Constraint("Vertical", 18),
    Sketcher.Constraint("Horizontal", 19),
    Sketcher.Constraint("Vertical", 20),
    Sketcher.Constraint("Horizontal", 21),
    Sketcher.Constraint("Vertical", 22),
    Sketcher.Constraint("Horizontal", 23),
    Sketcher.Constraint("Vertical", 24),
    Sketcher.Constraint("Horizontal", 25),
    Sketcher.Constraint("Vertical", 26),
    Sketcher.Constraint("Horizontal", 27),
    Sketcher.Constraint("Vertical", 28),
    Sketcher.Constraint("Horizontal", 29),
    Sketcher.Constraint("Vertical", 30),
    Sketcher.Constraint("Horizontal", 31),
    Sketcher.Constraint("Vertical", 32),
    Sketcher.Constraint("Horizontal", 33),
    Sketcher.Constraint("Vertical", 34),
    Sketcher.Constraint("Horizontal", 35),
    Sketcher.Constraint("Vertical", 36),
    Sketcher.Constraint("Horizontal", 37),
    Sketcher.Constraint("Vertical", 38),
    Sketcher.Constraint("Horizontal", 39),
    Sketcher.Constraint("Vertical", 40),
    Sketcher.Constraint("Horizontal", 41),
    Sketcher.Constraint("Vertical", 42),
    Sketcher.Constraint("Horizontal", 43),
    Sketcher.Constraint("Vertical", 44),
    Sketcher.Constraint("Horizontal", 45),
    Sketcher.Constraint("Vertical", 46),
    Sketcher.Constraint("Horizontal", 47),
    Sketcher.Constraint("Vertical", 48),
    Sketcher.Constraint("Horizontal", 49),
    Sketcher.Constraint("Vertical", 50),
    Sketcher.Constraint("Horizontal", 51),
    Sketcher.Constraint("Vertical", 52),
    Sketcher.Constraint("Horizontal", 53),
    Sketcher.Constraint("Vertical", 54),
    Sketcher.Constraint("Horizontal", 55),
    Sketcher.Constraint("Horizontal", 5, 2, 8, 2),
    Sketcher.Constraint("Horizontal", 7, 2, 10, 2),
    Sketcher.Constraint("Horizontal", 9, 2, 12, 2),
    Sketcher.Constraint("Horizontal", 11, 2, 14, 2),
    Sketcher.Constraint("Horizontal", 1, 2, 16, 2),
    Sketcher.Constraint("Horizontal", 3, 2, 18, 2),
    Sketcher.Constraint("Horizontal", 17, 2, 20, 2),
    Sketcher.Constraint("Horizontal", 19, 2, 22, 2),
    Sketcher.Constraint("Horizontal", 23, 2, 26, 2),
    Sketcher.Constraint("Horizontal", 29, 2, 32, 2),
    Sketcher.Constraint("Horizontal", 31, 2, 34, 2),
    Sketcher.Constraint("Horizontal", 33, 2, 36, 2),
    Sketcher.Constraint("Horizontal", 35, 2, 38, 2),
    Sketcher.Constraint("Horizontal", 37, 2, 40, 2),
    Sketcher.Constraint("Horizontal", 21, 2, 44, 2),
    Sketcher.Constraint("Horizontal", 27, 2, 46, 2),
    Sketcher.Constraint("Horizontal", 13, 2, 48, 2),
    Sketcher.Constraint("Horizontal", 15, 2, 50, 2),
    Sketcher.Constraint("Horizontal", 41, 2, 52, 2),
    Sketcher.Constraint("Horizontal", 39, 2, 54, 2),
    Sketcher.Constraint("Vertical", 2, 2, 5, 2),
    Sketcher.Constraint("Vertical", 11, 2, 20, 2),
    Sketcher.Constraint("Vertical", 10, 2, 21, 2),
    Sketcher.Constraint("Vertical", 15, 2, 24, 2),
    Sketcher.Constraint("Vertical", 14, 2, 25, 2),
    Sketcher.Constraint("Vertical", 3, 2, 28, 2),
    Sketcher.Constraint("Vertical", 6, 2, 29, 2),
    Sketcher.Constraint("Vertical", 19, 2, 32, 2),
    Sketcher.Constraint("Vertical", 18, 2, 33, 2),
    Sketcher.Constraint("Vertical", 23, 2, 36, 2),
    Sketcher.Constraint("Vertical", 22, 2, 37, 2),
    Sketcher.Constraint("Vertical", 27, 2, 40, 2),
    Sketcher.Constraint("Vertical", 26, 2, 41, 2),
    Sketcher.Constraint("Vertical", 47, 2, 48, 2),
    Sketcher.Constraint("Vertical", 51, 2, 52, 2),
    Sketcher.Constraint("Equal", 3, 13),
    Sketcher.Constraint("Equal", 15, 17),
    Sketcher.Constraint("Equal", 39, 45),
    Sketcher.Constraint("Equal", 7, 49),
    Sketcher.Constraint("Equal", 43, 53),
    Sketcher.Constraint("Equal", 2, 4),
    Sketcher.Constraint("Equal", 22, 28),
    Sketcher.Constraint("Equal", 26, 40),
    Sketcher.Constraint("DistanceY", 24, 2, 24, 1, Q("1 mm")),
    Sketcher.Constraint("DistanceX", 1, 2, 1, 1, Q("0.7 mm")),
    Sketcher.Constraint("DistanceX", 5, 2, 5, 1, Q("0.6 mm")),
    Sketcher.Constraint("DistanceX", 9, 2, 9, 1, Q("0.8 mm")),
    Sketcher.Constraint("DistanceY", 0, 2, 0, 1, Q("1.1 mm")),
    Sketcher.Constraint("DistanceX", 32, 2, 7, 2, Q("1 mm")),
    Sketcher.Constraint("DistanceX", 49, 2, 13, 2, Q("1 mm")),
    Sketcher.Constraint("DistanceY", 3, 2, 4, 2, Q("0.6 mm")),
    Sketcher.Constraint("DistanceX", 8, 2, 5, 2, Q("1.5 mm")),
    Sketcher.Constraint("DistanceX", 12, 2, 9, 2, Q("0.4 mm")),
    Sketcher.Constraint("DistanceY", 7, 2, 28, 2, Q("0.6 mm")),
    Sketcher.Constraint("DistanceX", -1, 1, 0, 2, Q("4.768227 mm")),
    Sketcher.Constraint("DistanceY", 0, 2, -1, 1, Q("4.865547 mm")),
])
pad6 = body.newObject("PartDesign::Pad", "Pad005")
pad6.Profile = sketch6
pad6.Length = 0.05
pad6.Reversed = True

doc.recompute()
